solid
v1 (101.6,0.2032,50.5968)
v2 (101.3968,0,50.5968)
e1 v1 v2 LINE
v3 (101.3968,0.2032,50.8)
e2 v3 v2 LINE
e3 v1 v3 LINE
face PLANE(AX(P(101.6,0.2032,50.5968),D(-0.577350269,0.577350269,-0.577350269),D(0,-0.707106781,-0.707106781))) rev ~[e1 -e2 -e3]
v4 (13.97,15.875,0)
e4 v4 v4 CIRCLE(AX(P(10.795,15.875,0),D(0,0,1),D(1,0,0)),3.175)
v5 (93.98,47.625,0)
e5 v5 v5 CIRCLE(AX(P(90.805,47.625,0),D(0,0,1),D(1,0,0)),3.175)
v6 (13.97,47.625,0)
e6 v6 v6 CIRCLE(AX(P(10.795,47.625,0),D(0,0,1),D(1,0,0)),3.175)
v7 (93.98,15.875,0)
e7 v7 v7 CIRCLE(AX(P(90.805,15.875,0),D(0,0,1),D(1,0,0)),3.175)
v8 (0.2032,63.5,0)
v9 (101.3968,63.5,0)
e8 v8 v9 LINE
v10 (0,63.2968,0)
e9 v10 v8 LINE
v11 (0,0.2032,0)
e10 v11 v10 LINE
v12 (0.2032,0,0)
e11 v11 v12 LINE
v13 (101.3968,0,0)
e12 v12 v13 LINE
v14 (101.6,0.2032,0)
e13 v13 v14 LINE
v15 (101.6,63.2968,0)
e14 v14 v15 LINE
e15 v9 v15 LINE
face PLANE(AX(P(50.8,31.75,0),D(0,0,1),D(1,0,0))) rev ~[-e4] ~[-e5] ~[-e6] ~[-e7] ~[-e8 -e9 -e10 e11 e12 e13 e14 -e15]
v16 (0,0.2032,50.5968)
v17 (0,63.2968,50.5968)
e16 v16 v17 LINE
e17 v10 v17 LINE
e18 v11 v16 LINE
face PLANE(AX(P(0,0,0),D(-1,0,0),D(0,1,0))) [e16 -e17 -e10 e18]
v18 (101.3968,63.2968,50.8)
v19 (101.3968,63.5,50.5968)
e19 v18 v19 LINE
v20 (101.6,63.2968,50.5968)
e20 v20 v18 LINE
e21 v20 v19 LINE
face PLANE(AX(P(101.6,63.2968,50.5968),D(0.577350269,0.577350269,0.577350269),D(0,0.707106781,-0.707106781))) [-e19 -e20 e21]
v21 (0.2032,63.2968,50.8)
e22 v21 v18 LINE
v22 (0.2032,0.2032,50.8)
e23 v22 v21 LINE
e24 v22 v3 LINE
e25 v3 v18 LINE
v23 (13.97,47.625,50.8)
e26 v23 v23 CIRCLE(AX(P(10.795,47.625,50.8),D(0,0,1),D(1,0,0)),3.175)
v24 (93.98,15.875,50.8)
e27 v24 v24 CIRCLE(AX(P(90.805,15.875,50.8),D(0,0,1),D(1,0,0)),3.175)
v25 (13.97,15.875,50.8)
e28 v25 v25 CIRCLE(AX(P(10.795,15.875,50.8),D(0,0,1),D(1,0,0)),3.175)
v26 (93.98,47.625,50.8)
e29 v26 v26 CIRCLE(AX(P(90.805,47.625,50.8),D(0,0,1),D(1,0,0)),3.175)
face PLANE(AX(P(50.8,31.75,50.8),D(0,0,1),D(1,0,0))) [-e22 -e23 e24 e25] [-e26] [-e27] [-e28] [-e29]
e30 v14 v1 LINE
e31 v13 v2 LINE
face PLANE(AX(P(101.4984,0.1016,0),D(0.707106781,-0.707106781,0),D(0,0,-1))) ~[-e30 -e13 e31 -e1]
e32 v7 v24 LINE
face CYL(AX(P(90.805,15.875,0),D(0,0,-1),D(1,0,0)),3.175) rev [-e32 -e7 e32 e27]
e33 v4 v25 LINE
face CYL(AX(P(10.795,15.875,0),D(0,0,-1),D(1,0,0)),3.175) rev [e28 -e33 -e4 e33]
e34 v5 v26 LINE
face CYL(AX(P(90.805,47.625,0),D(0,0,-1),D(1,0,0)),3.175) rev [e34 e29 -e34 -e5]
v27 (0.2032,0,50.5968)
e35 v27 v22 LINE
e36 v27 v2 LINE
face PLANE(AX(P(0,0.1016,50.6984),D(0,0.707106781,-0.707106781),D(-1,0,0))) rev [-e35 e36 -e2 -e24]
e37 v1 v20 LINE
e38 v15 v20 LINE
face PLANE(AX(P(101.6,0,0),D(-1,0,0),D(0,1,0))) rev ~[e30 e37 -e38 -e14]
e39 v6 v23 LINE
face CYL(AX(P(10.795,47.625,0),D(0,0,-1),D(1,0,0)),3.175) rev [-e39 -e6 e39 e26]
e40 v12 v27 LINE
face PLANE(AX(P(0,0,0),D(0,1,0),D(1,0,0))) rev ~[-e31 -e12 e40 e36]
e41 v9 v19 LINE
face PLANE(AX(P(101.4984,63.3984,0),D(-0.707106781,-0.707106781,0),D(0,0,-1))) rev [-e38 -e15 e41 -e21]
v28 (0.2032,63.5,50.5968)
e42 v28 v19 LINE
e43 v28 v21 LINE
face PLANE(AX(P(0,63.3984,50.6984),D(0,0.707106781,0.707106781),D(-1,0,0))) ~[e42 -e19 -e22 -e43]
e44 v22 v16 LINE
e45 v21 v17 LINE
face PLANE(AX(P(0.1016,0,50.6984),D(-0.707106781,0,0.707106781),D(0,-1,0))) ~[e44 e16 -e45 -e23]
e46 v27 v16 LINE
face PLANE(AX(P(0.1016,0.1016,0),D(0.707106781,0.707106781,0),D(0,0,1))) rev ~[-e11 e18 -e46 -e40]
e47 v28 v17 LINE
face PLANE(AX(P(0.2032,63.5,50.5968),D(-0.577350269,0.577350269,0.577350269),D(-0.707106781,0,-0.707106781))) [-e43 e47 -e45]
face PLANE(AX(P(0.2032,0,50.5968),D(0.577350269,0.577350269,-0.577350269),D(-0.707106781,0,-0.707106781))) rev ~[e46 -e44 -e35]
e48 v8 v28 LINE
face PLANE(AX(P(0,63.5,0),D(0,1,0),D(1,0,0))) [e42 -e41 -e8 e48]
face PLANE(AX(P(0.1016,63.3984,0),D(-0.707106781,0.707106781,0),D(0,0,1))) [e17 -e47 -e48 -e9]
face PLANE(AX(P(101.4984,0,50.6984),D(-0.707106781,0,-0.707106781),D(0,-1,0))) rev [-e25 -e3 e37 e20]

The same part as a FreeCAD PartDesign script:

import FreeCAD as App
import Part
import Sketcher
from FreeCAD import Vector
Q = App.Units.Quantity


def edges_at(feature, points):
    """Names of the edges that pass closest to the given points."""
    edges = feature.Shape.Edges
    near = lambda p: min(range(len(edges)), key=lambda i: edges[i].distToShape(Part.Vertex(*p))[0])
    return sorted({f"Edge{near(p) + 1}" for p in points})


def add_polygon(sketch, points):
    """Adds a closed chain of lines whose ends are joined by coincident constraints."""
    first, n = sketch.GeometryCount, len(points)
    for a, b in zip(points, points[1:] + points[:1]):
        sketch.addGeometry(Part.LineSegment(App.Vector(*a, 0), App.Vector(*b, 0)), False)
    for i in range(n):
        sketch.addConstraint(Sketcher.Constraint("Coincident", first + i, 2, first + (i + 1) % n, 1))

doc = App.newDocument("Part")
params = doc.addObject("Spreadsheet::Sheet", "Params")
for row, (alias, value) in enumerate([
    ("sketch1_diameter", "0.25 in"),
    ("sketch1_width", "4 in"),
    ("sketch1_height", "2.5 in"),
    ("pad1_length", "2 in"),
    ("chamfer_size", "0.008 in"),
], start=1):
    params.set(f"A{row}", alias)
    params.set(f"B{row}", "=" + value)
    params.setAlias(f"B{row}", alias)

body = doc.addObject("PartDesign::Body", "Body")

# Sketch on XY plane
sketch1 = body.newObject("Sketcher::SketchObject", "Sketch")
sketch1.AttachmentSupport = (doc.getObject("XY_Plane"), [""])
sketch1.MapMode = "FlatFace"
add_polygon(sketch1, [(0, 63.5), (0, 0), (101.6, 0), (101.6, 63.5)])  # lines 0-3
sketch1.addGeometry(Part.Circle(Vector(10.8, 15.9, 0), Vector(0, 0, 1), 3.2), False)  # 4
sketch1.addGeometry(Part.Circle(Vector(90.8, 15.9, 0), Vector(0, 0, 1), 3.2), False)  # 5
sketch1.addGeometry(Part.Circle(Vector(10.8, 47.6, 0), Vector(0, 0, 1), 3.2), False)  # 6
sketch1.addGeometry(Part.Circle(Vector(90.8, 47.6, 0), Vector(0, 0, 1), 3.2), False)  # 7
sketch1.addConstraint([
    Sketcher.Constraint("Vertical", 0),
    Sketcher.Constraint("Horizontal", 1),
    Sketcher.Constraint("Vertical", 2),
    Sketcher.Constraint("Horizontal", 3),
    Sketcher.Constraint("Coincident", 0, 2, -1, 1),
    Sketcher.Constraint("Equal", 4, 5),
    Sketcher.Constraint("Equal", 5, 6),
    Sketcher.Constraint("Equal", 6, 7),
    Sketcher.Constraint("Horizontal", 4, 3, 5, 3),
    Sketcher.Constraint("Horizontal", 6, 3, 7, 3),
    Sketcher.Constraint("Vertical", 4, 3, 6, 3),
    Sketcher.Constraint("Vertical", 5, 3, 7, 3),
    Sketcher.Constraint("Diameter", 4, Q("0.25 in")),
    Sketcher.Constraint("DistanceX", 1, 1, 1, 2, Q("4 in")),
    Sketcher.Constraint("DistanceY", 0, 2, 0, 1, Q("2.5 in")),
    Sketcher.Constraint("DistanceX", 4, 3, 5, 3, Q("3.15 in")),
    Sketcher.Constraint("DistanceY", 4, 3, 6, 3, Q("1.25 in")),
    Sketcher.Constraint("DistanceX", -1, 1, 4, 3, Q("0.425 in")),
    Sketcher.Constraint("DistanceY", -1, 1, 4, 3, Q("0.625 in")),
])
sketch1.setExpression("Constraints[16]", "Params.sketch1_diameter")
sketch1.setExpression("Constraints[17]", "Params.sketch1_width")
sketch1.setExpression("Constraints[18]", "Params.sketch1_height")
pad1 = body.newObject("PartDesign::Pad", "Pad")
pad1.Profile = sketch1
pad1.setExpression("Length", "Params.pad1_length")
doc.recompute()

chamfer = body.newObject("PartDesign::Chamfer", "Chamfer")
chamfer.Base = (pad1, edges_at(pad1, [
    (0, 31.75, 50.8),
    (50.8, 0, 50.8),
    (50.8, 63.5, 50.8),
    (101.6, 31.75, 50.8),
    (101.6, 0, 25.4),
    (101.6, 63.5, 25.4),
    (0, 0, 25.4),
    (0, 63.5, 25.4),
]))
chamfer.setExpression("Size", "Params.chamfer_size")

doc.recompute()
